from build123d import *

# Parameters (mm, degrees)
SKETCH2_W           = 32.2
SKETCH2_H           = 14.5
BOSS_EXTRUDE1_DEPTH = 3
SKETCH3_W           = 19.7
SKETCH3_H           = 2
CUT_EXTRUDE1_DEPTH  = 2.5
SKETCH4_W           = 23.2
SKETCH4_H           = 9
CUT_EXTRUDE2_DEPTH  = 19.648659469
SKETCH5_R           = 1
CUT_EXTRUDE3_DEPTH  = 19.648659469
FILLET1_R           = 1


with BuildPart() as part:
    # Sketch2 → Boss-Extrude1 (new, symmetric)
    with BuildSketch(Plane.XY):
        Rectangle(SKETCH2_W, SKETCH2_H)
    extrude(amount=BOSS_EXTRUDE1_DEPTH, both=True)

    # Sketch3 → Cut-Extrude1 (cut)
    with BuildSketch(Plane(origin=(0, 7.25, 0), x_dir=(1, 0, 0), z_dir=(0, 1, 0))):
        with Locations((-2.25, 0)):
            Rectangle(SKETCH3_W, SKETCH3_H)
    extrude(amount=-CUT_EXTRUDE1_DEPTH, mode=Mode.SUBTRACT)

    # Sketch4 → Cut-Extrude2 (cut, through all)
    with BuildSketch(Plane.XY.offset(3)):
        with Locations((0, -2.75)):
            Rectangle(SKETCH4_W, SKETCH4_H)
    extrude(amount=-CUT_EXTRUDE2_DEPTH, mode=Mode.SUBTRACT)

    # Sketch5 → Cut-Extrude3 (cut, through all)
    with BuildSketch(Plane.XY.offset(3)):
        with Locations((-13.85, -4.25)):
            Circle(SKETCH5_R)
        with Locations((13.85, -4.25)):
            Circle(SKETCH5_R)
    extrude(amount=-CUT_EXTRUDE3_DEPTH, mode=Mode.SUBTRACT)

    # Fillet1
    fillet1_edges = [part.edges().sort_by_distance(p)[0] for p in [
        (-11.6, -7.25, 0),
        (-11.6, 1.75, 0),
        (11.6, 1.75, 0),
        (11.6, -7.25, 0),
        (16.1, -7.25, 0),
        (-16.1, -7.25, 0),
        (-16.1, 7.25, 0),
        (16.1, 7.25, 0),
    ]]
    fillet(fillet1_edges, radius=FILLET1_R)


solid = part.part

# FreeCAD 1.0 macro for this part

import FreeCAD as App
import Part
import Sketcher

V = App.Vector
Q = App.Units.Quantity


def edges_at(feature, points):
    """Names of the edges that pass closest to the given points."""
    edges = feature.Shape.Edges
    near = lambda p: min(range(len(edges)), key=lambda i: edges[i].distToShape(Part.Vertex(*p))[0])
    return sorted({f"Edge{near(p) + 1}" for p in points})


def add_polygon(sketch, points):
    """Adds a closed chain of lines whose ends are joined by coincident constraints."""
    first, n = sketch.GeometryCount, len(points)
    for a, b in zip(points, points[1:] + points[:1]):
        sketch.addGeometry(Part.LineSegment(App.Vector(*a, 0), App.Vector(*b, 0)), False)
    for i in range(n):
        sketch.addConstraint(Sketcher.Constraint("Coincident", first + i, 2, first + (i + 1) % n, 1))

doc = App.newDocument("Part")
params = doc.addObject("Spreadsheet::Sheet", "Params")
for row, (alias, value) in enumerate([
    ("sketch1_width", "32.2 mm"),
    ("sketch1_height", "14.5 mm"),
    ("pad1_length", "6 mm"),
    ("sketch2_height", "2 mm"),
    ("sketch2_width", "19.7 mm"),
    ("pocket1_length", "2.5 mm"),
    ("sketch3_height", "9 mm"),
    ("sketch3_width", "23.2 mm"),
    ("sketch4_diameter", "2 mm"),
    ("fillet_radius", "1 mm"),
], start=1):
    params.set(f"A{row}", alias)
    params.set(f"B{row}", "=" + value)
    params.setAlias(f"B{row}", alias)

body = doc.addObject("PartDesign::Body", "Body")

# Sketch on XY plane
sketch1 = body.newObject("Sketcher::SketchObject", "Sketch")
sketch1.AttachmentSupport = (doc.getObject("XY_Plane"), [""])
sketch1.MapMode = "FlatFace"
add_polygon(sketch1, [(-16, 7), (-16, -7), (16, -7), (16, 7)])  # lines 0-3
sketch1.addConstraint(Sketcher.Constraint("Vertical", 0))
sketch1.addConstraint(Sketcher.Constraint("Horizontal", 1))
sketch1.addConstraint(Sketcher.Constraint("Vertical", 2))
sketch1.addConstraint(Sketcher.Constraint("Horizontal", 3))
sketch1.addConstraint(Sketcher.Constraint("Symmetric", 0, 2, 2, 2, -1, 1))
sketch1.addConstraint(Sketcher.Constraint("DistanceX", 1, 1, 1, 2, Q("32.2 mm")))
sketch1.addConstraint(Sketcher.Constraint("DistanceY", 0, 2, 0, 1, Q("14.5 mm")))
sketch1.setExpression("Constraints[9]", "Params.sketch1_width")
sketch1.setExpression("Constraints[10]", "Params.sketch1_height")
pad1 = body.newObject("PartDesign::Pad", "Pad")
pad1.Profile = sketch1
pad1.setExpression("Length", "Params.pad1_length")
pad1.Midplane = True

# Sketch on XZ plane
sketch2 = body.newObject("Sketcher::SketchObject", "Sketch001")
sketch2.AttachmentSupport = (doc.getObject("XZ_Plane"), [""])
sketch2.MapMode = "FlatFace"
sketch2.AttachmentOffset = App.Placement(V(0, 0, -7.25), App.Rotation())
add_polygon(sketch2, [(-12.1, -1), (-12.1, 1), (7.6, 1), (7.6, -1)])  # lines 0-3
sketch2.addConstraint(Sketcher.Constraint("Vertical", 0))
sketch2.addConstraint(Sketcher.Constraint("Horizontal", 1))
sketch2.addConstraint(Sketcher.Constraint("Vertical", 2))
sketch2.addConstraint(Sketcher.Constraint("Horizontal", 3))
sketch2.addConstraint(Sketcher.Constraint("DistanceY", 0, 1, 0, 2, Q("2 mm")))
sketch2.addConstraint(Sketcher.Constraint("DistanceX", 1, 1, 1, 2, Q("19.7 mm")))
sketch2.addConstraint(Sketcher.Constraint("DistanceY", -1, 1, 0, 2, Q("1 mm")))
sketch2.addConstraint(Sketcher.Constraint("DistanceX", 0, 2, -1, 1, Q("12.1 mm")))
sketch2.setExpression("Constraints[8]", "Params.sketch2_height")
sketch2.setExpression("Constraints[9]", "Params.sketch2_width")
pocket1 = body.newObject("PartDesign::Pocket", "Pocket")
pocket1.Profile = sketch2
pocket1.setExpression("Length", "Params.pocket1_length")
pocket1.Reversed = True

# Sketch on XY plane
sketch3 = body.newObject("Sketcher::SketchObject", "Sketch002")
sketch3.AttachmentSupport = (doc.getObject("XY_Plane"), [""])
sketch3.MapMode = "FlatFace"
sketch3.AttachmentOffset = App.Placement(V(0, 0, 3), App.Rotation())
add_polygon(sketch3, [(-12, 2), (-12, -7), (12, -7), (12, 2)])  # lines 0-3
sketch3.addConstraint(Sketcher.Constraint("Vertical", 0))
sketch3.addConstraint(Sketcher.Constraint("Horizontal", 1))
sketch3.addConstraint(Sketcher.Constraint("Vertical", 2))
sketch3.addConstraint(Sketcher.Constraint("Horizontal", 3))
sketch3.addConstraint(Sketcher.Constraint("DistanceY", 0, 2, 0, 1, Q("9 mm")))
sketch3.addConstraint(Sketcher.Constraint("DistanceX", 1, 1, 1, 2, Q("23.2 mm")))
sketch3.addConstraint(Sketcher.Constraint("DistanceX", 0, 2, -1, 1, Q("11.6 mm")))
sketch3.addConstraint(Sketcher.Constraint("DistanceY", 0, 2, -1, 1, Q("7.25 mm")))
sketch3.setExpression("Constraints[8]", "Params.sketch3_height")
sketch3.setExpression("Constraints[9]", "Params.sketch3_width")
pocket2 = body.newObject("PartDesign::Pocket", "Pocket001")
pocket2.Profile = sketch3
pocket2.Type = "ThroughAll"

# Sketch on XY plane
sketch4 = body.newObject("Sketcher::SketchObject", "Sketch003")
sketch4.AttachmentSupport = (doc.getObject("XY_Plane"), [""])
sketch4.MapMode = "FlatFace"
sketch4.AttachmentOffset = App.Placement(V(0, 0, 3), App.Rotation())
sketch4.addGeometry(Part.Circle(V(-13.8, -4.2, 0), V(0, 0, 1), 1), False)
sketch4.addGeometry(Part.Circle(V(13.8, -4.2, 0), V(0, 0, 1), 1), False)
sketch4.addConstraint(Sketcher.Constraint("Equal", 0, 1))
sketch4.addConstraint(Sketcher.Constraint("Symmetric", 0, 3, 1, 3, -2))
sketch4.addConstraint(Sketcher.Constraint("Diameter", 0, Q("2 mm")))
sketch4.addConstraint(Sketcher.Constraint("DistanceX", 0, 3, 1, 3, Q("27.7 mm")))
sketch4.addConstraint(Sketcher.Constraint("DistanceY", 0, 3, -1, 1, Q("4.25 mm")))
sketch4.setExpression("Constraints[2]", "Params.sketch4_diameter")
pocket3 = body.newObject("PartDesign::Pocket", "Pocket002")
pocket3.Profile = sketch4
pocket3.Type = "ThroughAll"
doc.recompute()

fillet = body.newObject("PartDesign::Fillet", "Fillet")
fillet.Base = (pocket3, edges_at(pocket3, [
    (-11.6, -7.25, 0),
    (-11.6, 1.75, 0),
    (11.6, 1.75, 0),
    (11.6, -7.25, 0),
    (16.1, -7.25, 0),
    (-16.1, -7.25, 0),
    (-16.1, 7.25, 0),
    (16.1, 7.25, 0),
]))
fillet.setExpression("Radius", "Params.fillet_radius")

doc.recompute()
